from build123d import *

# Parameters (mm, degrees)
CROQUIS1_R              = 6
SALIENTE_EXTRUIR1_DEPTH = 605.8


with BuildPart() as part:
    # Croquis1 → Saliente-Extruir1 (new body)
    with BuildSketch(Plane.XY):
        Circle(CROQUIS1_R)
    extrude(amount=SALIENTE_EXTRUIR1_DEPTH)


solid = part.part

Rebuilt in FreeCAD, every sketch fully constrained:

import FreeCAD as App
import Part
import Sketcher
from FreeCAD import Vector

doc = App.newDocument("Part")
body = doc.addObject("PartDesign::Body", "Body")

# Sketch on XY plane
sketch1 = body.newObject("Sketcher::SketchObject", "Sketch")
sketch1.AttachmentSupport = (doc.getObject("XY_Plane"), [""])
sketch1.MapMode = "FlatFace"
sketch1.addGeometry(Part.Circle(Vector(0, 0, 0), Vector(0, 0, 1), 6), False)
sketch1.addConstraint(Sketcher.Constraint("Coincident", 0, 3, -1, 1))
sketch1.addConstraint(Sketcher.Constraint("Diameter", 0, 12.0))
pad1 = body.newObject("PartDesign::Pad", "Pad")
pad1.Profile = sketch1
pad1.Length = 605.8

doc.recompute()
